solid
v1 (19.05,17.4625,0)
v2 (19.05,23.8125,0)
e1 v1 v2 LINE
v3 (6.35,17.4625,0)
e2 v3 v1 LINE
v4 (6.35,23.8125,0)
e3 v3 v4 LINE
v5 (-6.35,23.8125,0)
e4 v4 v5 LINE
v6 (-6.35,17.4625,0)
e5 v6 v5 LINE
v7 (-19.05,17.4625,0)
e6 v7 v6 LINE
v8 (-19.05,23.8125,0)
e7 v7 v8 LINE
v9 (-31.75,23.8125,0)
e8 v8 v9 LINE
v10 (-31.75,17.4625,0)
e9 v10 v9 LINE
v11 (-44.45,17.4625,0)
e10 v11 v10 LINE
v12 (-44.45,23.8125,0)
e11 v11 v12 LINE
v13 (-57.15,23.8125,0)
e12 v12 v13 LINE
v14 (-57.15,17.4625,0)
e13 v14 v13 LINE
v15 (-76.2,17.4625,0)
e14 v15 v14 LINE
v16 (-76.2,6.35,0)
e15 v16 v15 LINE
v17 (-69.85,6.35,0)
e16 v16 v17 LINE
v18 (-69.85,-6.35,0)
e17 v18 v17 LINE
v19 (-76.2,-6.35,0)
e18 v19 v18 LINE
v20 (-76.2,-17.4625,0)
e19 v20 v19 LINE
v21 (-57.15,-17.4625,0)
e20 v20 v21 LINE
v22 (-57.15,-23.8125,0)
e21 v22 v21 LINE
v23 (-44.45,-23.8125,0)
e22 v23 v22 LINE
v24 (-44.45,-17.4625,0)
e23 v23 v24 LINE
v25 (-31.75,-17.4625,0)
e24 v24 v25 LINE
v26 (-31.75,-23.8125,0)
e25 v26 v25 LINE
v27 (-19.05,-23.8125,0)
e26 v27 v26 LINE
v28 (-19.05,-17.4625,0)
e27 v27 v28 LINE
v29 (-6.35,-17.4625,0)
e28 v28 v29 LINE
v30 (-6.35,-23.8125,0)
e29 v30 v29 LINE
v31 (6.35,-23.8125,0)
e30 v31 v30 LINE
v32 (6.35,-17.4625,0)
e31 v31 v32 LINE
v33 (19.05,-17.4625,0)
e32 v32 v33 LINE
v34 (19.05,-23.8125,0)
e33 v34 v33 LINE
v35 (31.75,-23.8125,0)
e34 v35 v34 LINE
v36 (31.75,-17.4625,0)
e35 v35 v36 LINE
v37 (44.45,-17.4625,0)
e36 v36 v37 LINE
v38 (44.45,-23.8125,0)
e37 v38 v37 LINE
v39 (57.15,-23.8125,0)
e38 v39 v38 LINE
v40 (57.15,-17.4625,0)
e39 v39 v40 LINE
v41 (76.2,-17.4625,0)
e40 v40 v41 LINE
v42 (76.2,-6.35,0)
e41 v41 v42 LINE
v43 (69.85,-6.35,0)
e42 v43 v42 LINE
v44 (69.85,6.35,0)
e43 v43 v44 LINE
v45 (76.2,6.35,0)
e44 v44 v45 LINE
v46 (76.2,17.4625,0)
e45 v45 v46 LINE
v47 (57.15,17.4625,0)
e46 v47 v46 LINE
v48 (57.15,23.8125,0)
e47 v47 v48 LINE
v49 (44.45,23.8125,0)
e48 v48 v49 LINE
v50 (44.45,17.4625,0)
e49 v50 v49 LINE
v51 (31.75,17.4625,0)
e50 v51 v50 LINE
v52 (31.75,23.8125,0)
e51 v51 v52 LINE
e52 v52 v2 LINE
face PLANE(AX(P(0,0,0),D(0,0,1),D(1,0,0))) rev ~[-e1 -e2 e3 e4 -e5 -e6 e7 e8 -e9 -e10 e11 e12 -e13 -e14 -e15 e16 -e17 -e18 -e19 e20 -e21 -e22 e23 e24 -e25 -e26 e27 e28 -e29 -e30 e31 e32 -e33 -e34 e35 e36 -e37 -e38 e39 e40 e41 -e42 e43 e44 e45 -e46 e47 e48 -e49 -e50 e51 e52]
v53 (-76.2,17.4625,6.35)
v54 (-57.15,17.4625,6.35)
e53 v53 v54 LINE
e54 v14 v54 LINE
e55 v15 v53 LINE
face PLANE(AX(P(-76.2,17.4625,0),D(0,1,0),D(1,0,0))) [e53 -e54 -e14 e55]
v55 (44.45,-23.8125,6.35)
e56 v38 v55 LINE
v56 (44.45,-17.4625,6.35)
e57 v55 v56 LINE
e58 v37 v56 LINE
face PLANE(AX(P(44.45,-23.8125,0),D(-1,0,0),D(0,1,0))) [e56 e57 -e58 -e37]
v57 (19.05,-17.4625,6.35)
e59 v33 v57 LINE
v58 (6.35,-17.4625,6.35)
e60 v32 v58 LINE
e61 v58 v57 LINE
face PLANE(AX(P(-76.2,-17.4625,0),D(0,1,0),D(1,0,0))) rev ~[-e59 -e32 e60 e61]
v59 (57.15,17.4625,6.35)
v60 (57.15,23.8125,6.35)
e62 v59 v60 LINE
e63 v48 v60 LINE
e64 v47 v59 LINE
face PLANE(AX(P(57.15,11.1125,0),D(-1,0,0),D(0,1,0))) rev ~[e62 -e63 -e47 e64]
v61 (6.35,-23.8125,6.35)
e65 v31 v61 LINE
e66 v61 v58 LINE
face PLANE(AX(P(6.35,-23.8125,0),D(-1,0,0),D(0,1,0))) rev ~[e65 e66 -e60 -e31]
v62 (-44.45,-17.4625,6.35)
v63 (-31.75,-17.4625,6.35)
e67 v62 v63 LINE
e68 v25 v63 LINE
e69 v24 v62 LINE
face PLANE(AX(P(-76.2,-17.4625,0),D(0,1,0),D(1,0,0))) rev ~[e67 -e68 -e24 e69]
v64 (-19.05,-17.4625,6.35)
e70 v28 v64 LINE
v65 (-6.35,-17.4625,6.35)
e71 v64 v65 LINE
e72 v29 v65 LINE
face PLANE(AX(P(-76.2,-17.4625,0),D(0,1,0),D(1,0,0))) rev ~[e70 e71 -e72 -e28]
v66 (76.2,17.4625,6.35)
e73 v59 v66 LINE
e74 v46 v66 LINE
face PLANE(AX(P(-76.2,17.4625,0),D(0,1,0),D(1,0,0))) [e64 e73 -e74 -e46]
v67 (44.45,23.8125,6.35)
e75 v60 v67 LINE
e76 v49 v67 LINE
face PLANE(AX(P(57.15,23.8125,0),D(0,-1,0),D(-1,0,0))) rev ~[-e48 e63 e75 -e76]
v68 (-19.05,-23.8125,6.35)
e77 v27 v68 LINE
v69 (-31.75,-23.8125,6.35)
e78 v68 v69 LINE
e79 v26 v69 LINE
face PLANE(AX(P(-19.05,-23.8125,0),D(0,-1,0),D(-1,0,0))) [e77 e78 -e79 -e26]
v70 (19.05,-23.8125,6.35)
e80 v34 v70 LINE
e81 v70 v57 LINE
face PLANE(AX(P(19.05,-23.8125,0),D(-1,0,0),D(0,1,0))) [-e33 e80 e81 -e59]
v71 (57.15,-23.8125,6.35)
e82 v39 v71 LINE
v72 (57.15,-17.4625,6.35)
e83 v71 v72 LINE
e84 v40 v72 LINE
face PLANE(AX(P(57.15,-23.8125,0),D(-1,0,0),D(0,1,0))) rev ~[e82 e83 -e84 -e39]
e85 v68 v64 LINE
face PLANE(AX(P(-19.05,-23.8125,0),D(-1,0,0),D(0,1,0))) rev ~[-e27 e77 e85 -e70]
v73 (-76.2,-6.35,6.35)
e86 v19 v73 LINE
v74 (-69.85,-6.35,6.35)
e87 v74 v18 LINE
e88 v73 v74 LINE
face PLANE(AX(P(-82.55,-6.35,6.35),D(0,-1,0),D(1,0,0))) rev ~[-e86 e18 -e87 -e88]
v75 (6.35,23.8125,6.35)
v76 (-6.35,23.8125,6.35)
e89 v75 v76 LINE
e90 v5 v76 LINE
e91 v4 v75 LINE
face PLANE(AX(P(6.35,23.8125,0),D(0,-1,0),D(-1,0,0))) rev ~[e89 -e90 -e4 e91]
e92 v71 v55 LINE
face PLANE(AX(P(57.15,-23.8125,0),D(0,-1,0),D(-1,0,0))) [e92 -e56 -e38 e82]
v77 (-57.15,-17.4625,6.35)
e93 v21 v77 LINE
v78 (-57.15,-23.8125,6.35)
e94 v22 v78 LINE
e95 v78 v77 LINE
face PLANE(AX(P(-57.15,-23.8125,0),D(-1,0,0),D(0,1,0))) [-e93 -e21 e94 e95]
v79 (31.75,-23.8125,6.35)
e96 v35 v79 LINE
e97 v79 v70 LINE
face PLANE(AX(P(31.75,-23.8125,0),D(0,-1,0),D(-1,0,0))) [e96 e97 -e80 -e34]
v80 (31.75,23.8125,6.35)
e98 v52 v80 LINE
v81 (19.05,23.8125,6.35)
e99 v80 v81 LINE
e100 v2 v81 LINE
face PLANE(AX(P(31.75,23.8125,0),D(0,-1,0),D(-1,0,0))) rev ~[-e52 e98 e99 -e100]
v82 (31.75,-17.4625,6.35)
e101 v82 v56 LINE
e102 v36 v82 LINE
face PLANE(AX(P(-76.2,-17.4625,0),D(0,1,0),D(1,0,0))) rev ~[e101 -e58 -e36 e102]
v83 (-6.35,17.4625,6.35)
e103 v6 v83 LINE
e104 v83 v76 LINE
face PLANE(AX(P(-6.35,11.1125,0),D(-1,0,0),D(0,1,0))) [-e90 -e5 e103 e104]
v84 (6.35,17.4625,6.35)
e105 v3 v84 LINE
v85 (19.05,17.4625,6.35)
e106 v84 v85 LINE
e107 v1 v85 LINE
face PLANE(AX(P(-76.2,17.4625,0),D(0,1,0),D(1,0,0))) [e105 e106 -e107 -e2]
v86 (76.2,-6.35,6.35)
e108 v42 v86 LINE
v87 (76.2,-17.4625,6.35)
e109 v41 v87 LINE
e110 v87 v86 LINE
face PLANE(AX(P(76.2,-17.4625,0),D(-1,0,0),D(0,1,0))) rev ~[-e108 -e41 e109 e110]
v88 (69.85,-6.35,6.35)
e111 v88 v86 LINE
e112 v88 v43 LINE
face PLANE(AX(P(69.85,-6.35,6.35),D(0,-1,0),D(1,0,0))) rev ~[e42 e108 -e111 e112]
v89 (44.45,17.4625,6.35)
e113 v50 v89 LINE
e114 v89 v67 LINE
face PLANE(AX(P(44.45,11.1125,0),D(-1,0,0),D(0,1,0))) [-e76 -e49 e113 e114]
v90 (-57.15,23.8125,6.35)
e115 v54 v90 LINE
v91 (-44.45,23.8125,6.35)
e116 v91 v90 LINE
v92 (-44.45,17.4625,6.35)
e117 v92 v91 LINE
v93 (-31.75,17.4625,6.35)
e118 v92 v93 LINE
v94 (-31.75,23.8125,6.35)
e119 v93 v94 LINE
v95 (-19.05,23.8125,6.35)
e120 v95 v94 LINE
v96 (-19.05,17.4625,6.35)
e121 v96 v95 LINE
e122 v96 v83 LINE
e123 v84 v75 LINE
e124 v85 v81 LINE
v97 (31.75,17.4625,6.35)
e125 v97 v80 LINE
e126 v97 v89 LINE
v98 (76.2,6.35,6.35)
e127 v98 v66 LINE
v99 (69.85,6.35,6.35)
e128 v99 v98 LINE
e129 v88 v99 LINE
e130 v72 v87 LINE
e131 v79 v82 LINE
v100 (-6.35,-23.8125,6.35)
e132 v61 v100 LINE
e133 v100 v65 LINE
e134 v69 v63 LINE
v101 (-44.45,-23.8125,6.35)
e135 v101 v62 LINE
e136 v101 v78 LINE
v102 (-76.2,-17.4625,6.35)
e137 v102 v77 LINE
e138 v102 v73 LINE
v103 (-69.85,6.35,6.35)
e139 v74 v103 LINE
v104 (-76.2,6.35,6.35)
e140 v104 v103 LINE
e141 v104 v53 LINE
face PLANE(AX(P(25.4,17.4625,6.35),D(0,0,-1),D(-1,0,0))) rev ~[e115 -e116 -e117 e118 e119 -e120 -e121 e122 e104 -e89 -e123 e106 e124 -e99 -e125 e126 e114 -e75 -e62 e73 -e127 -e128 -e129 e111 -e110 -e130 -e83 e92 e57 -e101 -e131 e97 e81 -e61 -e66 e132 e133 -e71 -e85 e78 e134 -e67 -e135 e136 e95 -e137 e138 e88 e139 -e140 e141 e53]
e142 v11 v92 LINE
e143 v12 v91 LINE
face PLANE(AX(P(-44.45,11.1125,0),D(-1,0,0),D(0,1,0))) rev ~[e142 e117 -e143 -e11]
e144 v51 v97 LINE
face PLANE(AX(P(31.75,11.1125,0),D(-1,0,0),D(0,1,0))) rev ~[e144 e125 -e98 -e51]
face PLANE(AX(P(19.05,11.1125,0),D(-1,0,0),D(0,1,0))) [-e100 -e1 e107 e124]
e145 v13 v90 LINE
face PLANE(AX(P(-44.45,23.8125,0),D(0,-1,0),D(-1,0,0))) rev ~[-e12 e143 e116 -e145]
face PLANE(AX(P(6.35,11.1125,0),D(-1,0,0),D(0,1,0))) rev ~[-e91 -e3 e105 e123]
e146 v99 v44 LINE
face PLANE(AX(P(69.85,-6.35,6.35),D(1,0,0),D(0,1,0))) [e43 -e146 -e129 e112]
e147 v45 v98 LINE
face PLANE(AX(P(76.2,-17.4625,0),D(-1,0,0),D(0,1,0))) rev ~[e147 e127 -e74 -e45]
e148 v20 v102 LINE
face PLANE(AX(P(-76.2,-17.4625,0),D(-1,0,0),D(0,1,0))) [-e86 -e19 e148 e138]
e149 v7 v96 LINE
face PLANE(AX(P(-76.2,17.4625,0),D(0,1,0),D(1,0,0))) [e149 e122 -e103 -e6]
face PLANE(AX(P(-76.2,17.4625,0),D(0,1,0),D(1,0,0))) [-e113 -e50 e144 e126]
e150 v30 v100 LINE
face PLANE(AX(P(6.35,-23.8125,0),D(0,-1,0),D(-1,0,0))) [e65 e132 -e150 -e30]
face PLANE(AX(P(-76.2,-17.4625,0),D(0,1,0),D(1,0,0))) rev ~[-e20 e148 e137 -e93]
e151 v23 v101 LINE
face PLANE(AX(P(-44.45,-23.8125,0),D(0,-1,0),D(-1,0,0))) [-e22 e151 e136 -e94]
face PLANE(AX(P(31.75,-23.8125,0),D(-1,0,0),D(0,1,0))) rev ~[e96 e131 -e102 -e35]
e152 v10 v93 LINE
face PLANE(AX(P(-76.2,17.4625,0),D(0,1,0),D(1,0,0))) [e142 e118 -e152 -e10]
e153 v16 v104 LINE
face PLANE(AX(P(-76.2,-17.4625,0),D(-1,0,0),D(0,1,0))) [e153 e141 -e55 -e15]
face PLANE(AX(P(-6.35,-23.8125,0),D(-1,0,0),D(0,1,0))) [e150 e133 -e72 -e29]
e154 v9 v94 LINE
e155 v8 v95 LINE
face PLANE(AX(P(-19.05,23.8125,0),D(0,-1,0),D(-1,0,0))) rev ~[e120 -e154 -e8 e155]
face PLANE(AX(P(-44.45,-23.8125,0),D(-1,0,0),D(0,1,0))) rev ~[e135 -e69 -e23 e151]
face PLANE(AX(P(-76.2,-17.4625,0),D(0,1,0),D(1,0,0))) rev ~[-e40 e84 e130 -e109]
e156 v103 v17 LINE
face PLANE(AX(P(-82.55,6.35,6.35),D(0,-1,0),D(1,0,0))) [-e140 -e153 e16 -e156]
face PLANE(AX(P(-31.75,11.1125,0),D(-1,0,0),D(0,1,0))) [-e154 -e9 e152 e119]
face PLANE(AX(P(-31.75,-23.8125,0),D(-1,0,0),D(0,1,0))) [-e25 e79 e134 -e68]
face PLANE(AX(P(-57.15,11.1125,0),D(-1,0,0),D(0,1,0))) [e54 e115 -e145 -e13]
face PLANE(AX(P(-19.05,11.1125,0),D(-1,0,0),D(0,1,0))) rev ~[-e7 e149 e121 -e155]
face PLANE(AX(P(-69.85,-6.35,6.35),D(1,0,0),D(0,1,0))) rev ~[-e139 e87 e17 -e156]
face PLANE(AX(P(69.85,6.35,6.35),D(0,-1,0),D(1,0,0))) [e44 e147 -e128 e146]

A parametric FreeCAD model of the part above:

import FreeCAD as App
import Part
import Sketcher

V = App.Vector
Q = App.Units.Quantity


def add_polygon(sketch, points):
    """Adds a closed chain of lines whose ends are joined by coincident constraints."""
    first, n = sketch.GeometryCount, len(points)
    for a, b in zip(points, points[1:] + points[:1]):
        sketch.addGeometry(Part.LineSegment(App.Vector(*a, 0), App.Vector(*b, 0)), False)
    for i in range(n):
        sketch.addConstraint(Sketcher.Constraint("Coincident", first + i, 2, first + (i + 1) % n, 1))

doc = App.newDocument("Part")
body = doc.addObject("PartDesign::Body", "Body")

# Sketch on XY plane
sketch1 = body.newObject("Sketcher::SketchObject", "Sketch")
sketch1.AttachmentSupport = (doc.getObject("XY_Plane"), [""])
sketch1.MapMode = "FlatFace"
add_polygon(sketch1, [(-76, 17), (-76, -17), (76, -17), (76, 17)])  # lines 0-3
sketch1.addConstraint(Sketcher.Constraint("Vertical", 0))
sketch1.addConstraint(Sketcher.Constraint("Horizontal", 1))
sketch1.addConstraint(Sketcher.Constraint("Vertical", 2))
sketch1.addConstraint(Sketcher.Constraint("Horizontal", 3))
sketch1.addConstraint(Sketcher.Constraint("Symmetric", 0, 2, 2, 2, -1, 1))
sketch1.addConstraint(Sketcher.Constraint("DistanceX", 1, 1, 1, 2, Q("6 in")))
sketch1.addConstraint(Sketcher.Constraint("DistanceY", 0, 2, 0, 1, Q("1.375 in")))
pad1 = body.newObject("PartDesign::Pad", "Pad")
pad1.Profile = sketch1
pad1.Length = Q("0.25 in")

# Sketch on XY plane
sketch2 = body.newObject("Sketcher::SketchObject", "Sketch001")
sketch2.AttachmentSupport = (doc.getObject("XY_Plane"), [""])
sketch2.MapMode = "FlatFace"
add_polygon(sketch2, [(6, 24), (6, 11), (-6, 11), (-6, 24)])  # lines 0-3
add_polygon(sketch2, [(6, -11), (6, -24), (-6, -24), (-6, -11)])  # lines 4-7
sketch2.addConstraint(Sketcher.Constraint("Vertical", 0))
sketch2.addConstraint(Sketcher.Constraint("Horizontal", 1))
sketch2.addConstraint(Sketcher.Constraint("Vertical", 2))
sketch2.addConstraint(Sketcher.Constraint("Horizontal", 3))
sketch2.addConstraint(Sketcher.Constraint("Vertical", 4))
sketch2.addConstraint(Sketcher.Constraint("Horizontal", 5))
sketch2.addConstraint(Sketcher.Constraint("Vertical", 6))
sketch2.addConstraint(Sketcher.Constraint("Horizontal", 7))
sketch2.addConstraint(Sketcher.Constraint("Symmetric", 2, 2, 4, 2, -1, 1))
sketch2.addConstraint(Sketcher.Constraint("Symmetric", 0, 2, 6, 2, -1, 1))
sketch2.addConstraint(Sketcher.Constraint("Vertical", 3, 2, 4, 2))
sketch2.addConstraint(Sketcher.Constraint("Equal", 7, 0))
sketch2.addConstraint(Sketcher.Constraint("DistanceX", 1, 2, 1, 1, Q("0.5 in")))
sketch2.addConstraint(Sketcher.Constraint("DistanceY", -1, 1, 0, 2, Q("0.4375 in")))
pad2 = body.newObject("PartDesign::Pad", "Pad001")
pad2.Profile = sketch2
pad2.Length = Q("0.25 in")
doc.recompute()

linearpattern = body.newObject("PartDesign::LinearPattern", "LinearPattern")
linearpattern.Originals = [pad2]
linearpattern.Direction = (doc.getObject("X_Axis"), [""])
linearpattern.Mode = "offset"
linearpattern.Offset = Q("1 in")
linearpattern.Occurrences = 3
linearpattern.Reversed = True
body.Tip = linearpattern
doc.recompute()

linearpattern2 = body.newObject("PartDesign::LinearPattern", "LinearPattern001")
linearpattern2.Originals = [pad2]
linearpattern2.Direction = (doc.getObject("X_Axis"), [""])
linearpattern2.Mode = "offset"
linearpattern2.Offset = Q("1 in")
linearpattern2.Occurrences = 3
body.Tip = linearpattern2

# Sketch on XY plane
sketch3 = body.newObject("Sketcher::SketchObject", "Sketch002")
sketch3.AttachmentSupport = (doc.getObject("XY_Plane"), [""])
sketch3.MapMode = "FlatFace"
sketch3.AttachmentOffset = App.Placement(V(0, 0, 0.25 * 25.4), App.Rotation())
add_polygon(sketch3, [(70, 6), (70, -6), (83, -6), (83, 6)])  # lines 0-3
add_polygon(sketch3, [(-83, 6), (-83, -6), (-70, -6), (-70, 6)])  # lines 4-7
sketch3.addConstraint(Sketcher.Constraint("Vertical", 0))
sketch3.addConstraint(Sketcher.Constraint("Horizontal", 1))
sketch3.addConstraint(Sketcher.Constraint("Vertical", 2))
sketch3.addConstraint(Sketcher.Constraint("Horizontal", 3))
sketch3.addConstraint(Sketcher.Constraint("Vertical", 4))
sketch3.addConstraint(Sketcher.Constraint("Horizontal", 5))
sketch3.addConstraint(Sketcher.Constraint("Vertical", 6))
sketch3.addConstraint(Sketcher.Constraint("Horizontal", 7))
sketch3.addConstraint(Sketcher.Constraint("Symmetric", 2, 2, 4, 2, -1, 1))
sketch3.addConstraint(Sketcher.Constraint("Symmetric", 0, 2, 6, 2, -1, 1))
sketch3.addConstraint(Sketcher.Constraint("Horizontal", 1, 2, 4, 2))
sketch3.addConstraint(Sketcher.Constraint("Equal", 7, 0))
sketch3.addConstraint(Sketcher.Constraint("DistanceX", 1, 1, 1, 2, Q("0.5 in")))
sketch3.addConstraint(Sketcher.Constraint("DistanceX", 4, 2, 0, 2, Q("6 in")))
pocket1 = body.newObject("PartDesign::Pocket", "Pocket")
pocket1.Profile = sketch3
pocket1.Type = "ThroughAll"

doc.recompute()
